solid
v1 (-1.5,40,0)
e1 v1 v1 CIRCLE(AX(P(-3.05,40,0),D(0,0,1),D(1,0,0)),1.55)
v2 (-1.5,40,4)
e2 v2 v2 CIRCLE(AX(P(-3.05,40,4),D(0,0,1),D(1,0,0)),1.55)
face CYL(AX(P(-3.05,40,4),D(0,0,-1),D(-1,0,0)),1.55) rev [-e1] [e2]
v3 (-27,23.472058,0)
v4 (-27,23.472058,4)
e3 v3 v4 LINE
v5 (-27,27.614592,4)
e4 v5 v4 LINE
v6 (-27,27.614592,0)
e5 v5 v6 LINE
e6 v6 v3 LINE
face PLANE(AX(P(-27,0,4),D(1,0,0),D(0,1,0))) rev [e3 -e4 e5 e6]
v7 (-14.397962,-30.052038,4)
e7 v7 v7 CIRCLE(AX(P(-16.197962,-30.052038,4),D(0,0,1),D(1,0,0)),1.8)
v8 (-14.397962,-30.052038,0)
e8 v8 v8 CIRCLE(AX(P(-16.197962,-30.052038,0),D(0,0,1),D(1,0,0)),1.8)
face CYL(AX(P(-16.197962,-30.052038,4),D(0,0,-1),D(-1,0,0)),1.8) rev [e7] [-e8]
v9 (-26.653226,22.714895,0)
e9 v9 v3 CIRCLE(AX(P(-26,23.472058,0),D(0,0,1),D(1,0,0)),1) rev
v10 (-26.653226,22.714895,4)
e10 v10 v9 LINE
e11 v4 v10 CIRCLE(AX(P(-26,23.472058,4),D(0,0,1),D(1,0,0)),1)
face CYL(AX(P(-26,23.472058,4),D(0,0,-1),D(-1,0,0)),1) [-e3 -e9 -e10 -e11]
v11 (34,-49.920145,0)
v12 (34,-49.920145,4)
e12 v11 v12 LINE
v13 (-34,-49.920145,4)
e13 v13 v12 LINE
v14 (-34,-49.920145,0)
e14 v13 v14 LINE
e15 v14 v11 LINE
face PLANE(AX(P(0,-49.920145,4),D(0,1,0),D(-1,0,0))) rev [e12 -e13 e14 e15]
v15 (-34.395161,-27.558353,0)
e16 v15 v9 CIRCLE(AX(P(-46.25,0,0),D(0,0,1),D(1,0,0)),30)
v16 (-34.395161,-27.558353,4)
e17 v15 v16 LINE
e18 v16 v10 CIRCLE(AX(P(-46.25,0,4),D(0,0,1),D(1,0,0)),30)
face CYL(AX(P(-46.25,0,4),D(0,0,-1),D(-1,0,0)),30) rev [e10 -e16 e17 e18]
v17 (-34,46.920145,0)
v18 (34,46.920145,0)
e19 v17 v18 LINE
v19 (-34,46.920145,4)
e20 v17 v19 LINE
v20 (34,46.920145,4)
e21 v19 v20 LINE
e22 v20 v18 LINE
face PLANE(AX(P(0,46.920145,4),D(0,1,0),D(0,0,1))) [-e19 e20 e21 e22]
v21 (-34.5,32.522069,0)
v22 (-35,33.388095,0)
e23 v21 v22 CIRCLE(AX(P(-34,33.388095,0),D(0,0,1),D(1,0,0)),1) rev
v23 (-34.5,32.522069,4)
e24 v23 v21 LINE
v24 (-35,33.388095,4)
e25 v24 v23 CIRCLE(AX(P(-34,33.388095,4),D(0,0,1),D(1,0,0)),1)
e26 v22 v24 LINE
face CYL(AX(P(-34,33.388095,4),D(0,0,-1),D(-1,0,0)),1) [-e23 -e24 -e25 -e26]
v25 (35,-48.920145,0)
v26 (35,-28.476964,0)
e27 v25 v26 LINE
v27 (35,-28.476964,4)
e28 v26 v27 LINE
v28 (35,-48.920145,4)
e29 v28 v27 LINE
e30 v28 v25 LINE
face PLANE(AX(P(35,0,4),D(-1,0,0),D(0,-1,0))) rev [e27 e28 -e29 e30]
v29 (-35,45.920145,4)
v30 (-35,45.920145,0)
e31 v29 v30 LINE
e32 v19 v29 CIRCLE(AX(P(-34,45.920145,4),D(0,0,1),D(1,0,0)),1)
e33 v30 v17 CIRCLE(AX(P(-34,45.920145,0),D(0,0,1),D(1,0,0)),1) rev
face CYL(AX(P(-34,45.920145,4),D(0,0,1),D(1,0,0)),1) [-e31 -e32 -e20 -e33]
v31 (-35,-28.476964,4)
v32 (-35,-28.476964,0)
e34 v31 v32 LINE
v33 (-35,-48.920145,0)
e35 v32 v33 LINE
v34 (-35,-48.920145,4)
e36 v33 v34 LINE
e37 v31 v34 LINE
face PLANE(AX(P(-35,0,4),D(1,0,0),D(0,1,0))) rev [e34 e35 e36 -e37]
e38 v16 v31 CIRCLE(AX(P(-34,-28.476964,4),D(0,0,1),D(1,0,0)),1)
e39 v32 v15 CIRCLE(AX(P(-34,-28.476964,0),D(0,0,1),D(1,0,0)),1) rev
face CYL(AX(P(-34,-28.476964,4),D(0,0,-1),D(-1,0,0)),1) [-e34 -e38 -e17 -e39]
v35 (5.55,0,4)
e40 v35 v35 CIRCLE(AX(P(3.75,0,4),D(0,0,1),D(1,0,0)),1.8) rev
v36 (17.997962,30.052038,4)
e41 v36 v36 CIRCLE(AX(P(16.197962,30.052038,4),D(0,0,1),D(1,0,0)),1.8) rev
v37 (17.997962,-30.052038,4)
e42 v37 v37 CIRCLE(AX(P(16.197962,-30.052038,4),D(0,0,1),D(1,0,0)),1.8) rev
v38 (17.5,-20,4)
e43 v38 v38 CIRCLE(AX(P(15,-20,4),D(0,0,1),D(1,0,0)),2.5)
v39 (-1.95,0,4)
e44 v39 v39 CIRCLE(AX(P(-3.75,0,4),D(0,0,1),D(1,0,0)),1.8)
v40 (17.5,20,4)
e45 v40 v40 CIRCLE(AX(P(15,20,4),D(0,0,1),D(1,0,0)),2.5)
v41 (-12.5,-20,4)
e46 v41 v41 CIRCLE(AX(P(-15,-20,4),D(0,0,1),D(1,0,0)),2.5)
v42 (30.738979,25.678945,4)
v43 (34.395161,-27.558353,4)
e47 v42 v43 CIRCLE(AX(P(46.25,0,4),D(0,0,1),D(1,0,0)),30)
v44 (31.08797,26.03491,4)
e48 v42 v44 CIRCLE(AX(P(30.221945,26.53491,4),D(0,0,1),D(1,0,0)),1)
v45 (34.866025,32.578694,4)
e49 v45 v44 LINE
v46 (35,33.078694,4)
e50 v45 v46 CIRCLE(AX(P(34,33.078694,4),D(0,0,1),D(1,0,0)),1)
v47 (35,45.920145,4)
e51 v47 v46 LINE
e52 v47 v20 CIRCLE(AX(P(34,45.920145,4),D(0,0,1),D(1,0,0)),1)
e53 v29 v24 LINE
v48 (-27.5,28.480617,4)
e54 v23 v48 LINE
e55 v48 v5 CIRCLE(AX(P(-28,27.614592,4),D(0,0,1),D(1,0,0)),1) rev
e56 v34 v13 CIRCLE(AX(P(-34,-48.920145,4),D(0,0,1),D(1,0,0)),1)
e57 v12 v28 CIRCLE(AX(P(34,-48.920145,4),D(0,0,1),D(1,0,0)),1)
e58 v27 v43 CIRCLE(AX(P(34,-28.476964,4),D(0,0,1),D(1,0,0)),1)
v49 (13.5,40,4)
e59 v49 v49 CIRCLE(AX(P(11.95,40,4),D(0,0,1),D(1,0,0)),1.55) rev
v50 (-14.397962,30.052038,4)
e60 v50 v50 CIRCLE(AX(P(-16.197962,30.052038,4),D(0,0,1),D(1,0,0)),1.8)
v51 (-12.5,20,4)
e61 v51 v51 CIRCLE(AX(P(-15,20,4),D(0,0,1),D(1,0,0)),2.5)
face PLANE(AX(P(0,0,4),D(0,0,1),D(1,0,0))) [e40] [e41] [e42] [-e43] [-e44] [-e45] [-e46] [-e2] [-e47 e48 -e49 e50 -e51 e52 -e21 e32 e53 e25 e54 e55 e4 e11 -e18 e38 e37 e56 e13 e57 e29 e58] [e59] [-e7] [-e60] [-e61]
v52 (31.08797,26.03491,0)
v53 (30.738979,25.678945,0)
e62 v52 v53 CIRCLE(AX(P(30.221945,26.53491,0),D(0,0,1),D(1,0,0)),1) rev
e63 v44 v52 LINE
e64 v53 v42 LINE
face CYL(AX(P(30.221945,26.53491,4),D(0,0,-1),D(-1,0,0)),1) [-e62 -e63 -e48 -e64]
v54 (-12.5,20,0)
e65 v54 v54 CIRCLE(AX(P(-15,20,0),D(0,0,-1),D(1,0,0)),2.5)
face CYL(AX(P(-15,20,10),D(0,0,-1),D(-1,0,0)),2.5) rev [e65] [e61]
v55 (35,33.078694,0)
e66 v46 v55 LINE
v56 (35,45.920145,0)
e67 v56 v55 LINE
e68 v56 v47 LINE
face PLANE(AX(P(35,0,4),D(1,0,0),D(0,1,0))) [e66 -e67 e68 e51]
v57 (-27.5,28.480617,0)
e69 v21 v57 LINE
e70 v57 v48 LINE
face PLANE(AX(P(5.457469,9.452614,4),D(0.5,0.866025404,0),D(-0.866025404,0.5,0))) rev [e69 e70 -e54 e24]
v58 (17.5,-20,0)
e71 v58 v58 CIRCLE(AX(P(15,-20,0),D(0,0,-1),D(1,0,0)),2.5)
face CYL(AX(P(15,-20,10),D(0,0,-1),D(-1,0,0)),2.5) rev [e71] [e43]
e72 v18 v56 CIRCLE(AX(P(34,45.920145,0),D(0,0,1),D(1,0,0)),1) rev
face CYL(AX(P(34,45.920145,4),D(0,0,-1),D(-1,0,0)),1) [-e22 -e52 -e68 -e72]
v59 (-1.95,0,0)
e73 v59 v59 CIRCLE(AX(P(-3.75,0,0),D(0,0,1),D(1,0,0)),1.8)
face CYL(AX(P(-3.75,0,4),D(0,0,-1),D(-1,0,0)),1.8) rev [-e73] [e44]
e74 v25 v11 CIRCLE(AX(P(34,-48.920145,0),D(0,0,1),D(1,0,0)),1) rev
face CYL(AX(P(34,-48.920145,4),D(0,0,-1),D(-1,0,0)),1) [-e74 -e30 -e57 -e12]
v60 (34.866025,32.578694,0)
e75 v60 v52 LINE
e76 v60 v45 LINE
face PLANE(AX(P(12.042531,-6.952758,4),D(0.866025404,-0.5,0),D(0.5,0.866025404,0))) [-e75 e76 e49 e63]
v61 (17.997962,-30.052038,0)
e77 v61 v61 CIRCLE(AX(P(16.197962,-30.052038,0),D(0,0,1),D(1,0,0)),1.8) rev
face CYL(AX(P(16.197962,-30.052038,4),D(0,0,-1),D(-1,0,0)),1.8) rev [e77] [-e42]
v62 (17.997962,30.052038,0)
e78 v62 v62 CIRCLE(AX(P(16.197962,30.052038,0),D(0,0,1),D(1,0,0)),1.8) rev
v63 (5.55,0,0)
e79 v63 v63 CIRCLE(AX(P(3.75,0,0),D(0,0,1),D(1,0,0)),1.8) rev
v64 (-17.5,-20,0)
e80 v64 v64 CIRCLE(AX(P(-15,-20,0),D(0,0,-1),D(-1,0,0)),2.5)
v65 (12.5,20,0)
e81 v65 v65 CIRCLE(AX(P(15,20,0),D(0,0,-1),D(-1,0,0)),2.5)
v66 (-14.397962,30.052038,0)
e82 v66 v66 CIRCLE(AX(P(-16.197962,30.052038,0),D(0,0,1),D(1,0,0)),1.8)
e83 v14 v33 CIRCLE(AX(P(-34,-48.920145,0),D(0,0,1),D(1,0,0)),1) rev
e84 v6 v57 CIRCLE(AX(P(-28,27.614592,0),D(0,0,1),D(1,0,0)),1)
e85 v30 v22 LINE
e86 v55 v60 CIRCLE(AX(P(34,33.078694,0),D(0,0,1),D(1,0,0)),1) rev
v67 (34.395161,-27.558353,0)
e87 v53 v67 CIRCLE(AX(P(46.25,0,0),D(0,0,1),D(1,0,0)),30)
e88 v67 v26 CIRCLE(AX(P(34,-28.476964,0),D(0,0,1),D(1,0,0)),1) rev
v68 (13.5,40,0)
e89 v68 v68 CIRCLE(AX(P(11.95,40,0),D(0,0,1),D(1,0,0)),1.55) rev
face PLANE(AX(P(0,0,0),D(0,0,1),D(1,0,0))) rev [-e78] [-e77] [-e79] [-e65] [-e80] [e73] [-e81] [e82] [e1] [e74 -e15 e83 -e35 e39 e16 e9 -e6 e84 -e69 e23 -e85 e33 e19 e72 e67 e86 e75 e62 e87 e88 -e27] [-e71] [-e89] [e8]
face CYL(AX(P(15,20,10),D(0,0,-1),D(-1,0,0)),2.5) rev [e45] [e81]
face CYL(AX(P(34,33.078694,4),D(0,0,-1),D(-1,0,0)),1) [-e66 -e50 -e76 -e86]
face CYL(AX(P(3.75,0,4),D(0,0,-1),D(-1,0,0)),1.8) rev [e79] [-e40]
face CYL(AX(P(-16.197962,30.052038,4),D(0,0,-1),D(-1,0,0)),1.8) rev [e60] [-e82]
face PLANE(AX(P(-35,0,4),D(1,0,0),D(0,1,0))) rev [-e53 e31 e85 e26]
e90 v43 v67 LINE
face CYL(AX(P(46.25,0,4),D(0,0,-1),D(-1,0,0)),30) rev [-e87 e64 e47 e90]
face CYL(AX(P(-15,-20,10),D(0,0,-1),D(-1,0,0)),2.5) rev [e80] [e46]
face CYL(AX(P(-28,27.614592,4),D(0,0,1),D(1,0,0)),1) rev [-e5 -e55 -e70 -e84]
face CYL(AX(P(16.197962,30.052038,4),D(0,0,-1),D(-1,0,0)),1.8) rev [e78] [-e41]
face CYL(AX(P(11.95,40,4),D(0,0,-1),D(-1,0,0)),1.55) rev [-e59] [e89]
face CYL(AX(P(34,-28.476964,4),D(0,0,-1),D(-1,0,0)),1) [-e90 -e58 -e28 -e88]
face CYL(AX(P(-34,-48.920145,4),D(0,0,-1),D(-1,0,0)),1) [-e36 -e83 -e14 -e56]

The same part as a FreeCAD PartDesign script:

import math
import FreeCAD as App
import Part
import Sketcher

V = App.Vector
Q = App.Units.Quantity


def edges_at(feature, points):
    """Names of the edges that pass closest to the given points."""
    edges = feature.Shape.Edges
    near = lambda p: min(range(len(edges)), key=lambda i: edges[i].distToShape(Part.Vertex(*p))[0])
    return sorted({f"Edge{near(p) + 1}" for p in points})

doc = App.newDocument("Part")
body = doc.addObject("PartDesign::Body", "Body")

sketch1 = body.newObject("Sketcher::SketchObject", "Sketch")
sketch1.AttachmentSupport = (doc.getObject("XY_Plane"), [""])
sketch1.MapMode = "FlatFace"
sketch1.addGeometry(Part.LineSegment(V(35, 46.920145, 0), V(-35, 46.920145, 0)), False)
sketch1.addGeometry(Part.LineSegment(V(-35, 46.920145, 0), V(-35, 32.810744, 0)), False)
sketch1.addGeometry(Part.LineSegment(V(-35, 32.810744, 0), V(-27, 28.191942, 0)), False)
sketch1.addGeometry(Part.LineSegment(V(-27, 28.191942, 0), V(-27, 23.009509, 0)), False)
sketch1.addGeometry(Part.ArcOfCircle(Part.Circle(V(-46.25, 0, 0), V(0, 0, 1), 30), math.radians(-67.975687), math.radians(50.083789)), False)
sketch1.addGeometry(Part.LineSegment(V(-35, -27.810744, 0), V(-35, -49.920145, 0)), False)
sketch1.addGeometry(Part.LineSegment(V(-35, -49.920145, 0), V(35, -49.920145, 0)), False)
sketch1.addGeometry(Part.LineSegment(V(35, -49.920145, 0), V(35, -27.810744, 0)), False)
sketch1.addGeometry(Part.ArcOfCircle(Part.Circle(V(46.25, 0, 0), V(0, 0, 1), 30), math.radians(120.645721), math.radians(247.975687)), False)
sketch1.addGeometry(Part.LineSegment(V(30.958157, 25.810066, 0), V(35, 32.810744, 0)), False)
sketch1.addGeometry(Part.LineSegment(V(35, 32.810744, 0), V(35, 46.920145, 0)), False)
sketch1.addGeometry(Part.Circle(V(-16.197962, -30.052038, 0), V(0, 0, 1), 1.8), False)
sketch1.addGeometry(Part.Circle(V(-3.75, 0, 0), V(0, 0, 1), 1.8), False)
sketch1.addGeometry(Part.Circle(V(16.197962, -30.052038, 0), V(0, 0, 1), 1.8), False)
sketch1.addGeometry(Part.Circle(V(3.75, 0, 0), V(0, 0, 1), 1.8), False)
sketch1.addGeometry(Part.Circle(V(-16.197962, 30.052038, 0), V(0, 0, 1), 1.8), False)
sketch1.addGeometry(Part.Circle(V(-3.05, 40, 0), V(0, 0, 1), 1.55), False)
sketch1.addGeometry(Part.Circle(V(16.197962, 30.052038, 0), V(0, 0, 1), 1.8), False)
sketch1.addGeometry(Part.Circle(V(11.95, 40, 0), V(0, 0, 1), 1.55), False)
sketch1.addConstraint(Sketcher.Constraint("Coincident", 0, 2, 1, 1))
sketch1.addConstraint(Sketcher.Constraint("Coincident", 1, 2, 2, 1))
sketch1.addConstraint(Sketcher.Constraint("Coincident", 2, 2, 3, 1))
sketch1.addConstraint(Sketcher.Constraint("Coincident", 3, 2, 4, 2))
sketch1.addConstraint(Sketcher.Constraint("Coincident", 4, 1, 5, 1))
sketch1.addConstraint(Sketcher.Constraint("Coincident", 5, 2, 6, 1))
sketch1.addConstraint(Sketcher.Constraint("Coincident", 6, 2, 7, 1))
sketch1.addConstraint(Sketcher.Constraint("Coincident", 7, 2, 8, 2))
sketch1.addConstraint(Sketcher.Constraint("Coincident", 8, 1, 9, 1))
sketch1.addConstraint(Sketcher.Constraint("Coincident", 9, 2, 10, 1))
sketch1.addConstraint(Sketcher.Constraint("Coincident", 10, 2, 0, 1))
sketch1.addConstraint(Sketcher.Constraint("Horizontal", 0))
sketch1.addConstraint(Sketcher.Constraint("Vertical", 1))
sketch1.addConstraint(Sketcher.Constraint("Vertical", 3))
sketch1.addConstraint(Sketcher.Constraint("Vertical", 5))
sketch1.addConstraint(Sketcher.Constraint("Horizontal", 6))
sketch1.addConstraint(Sketcher.Constraint("Vertical", 7))
sketch1.addConstraint(Sketcher.Constraint("Vertical", 10))
sketch1.addConstraint(Sketcher.Constraint("Equal", 4, 8))
sketch1.addConstraint(Sketcher.Constraint("Equal", 11, 12))
sketch1.addConstraint(Sketcher.Constraint("Equal", 12, 13))
sketch1.addConstraint(Sketcher.Constraint("Equal", 13, 14))
sketch1.addConstraint(Sketcher.Constraint("Equal", 14, 15))
sketch1.addConstraint(Sketcher.Constraint("Equal", 15, 17))
sketch1.addConstraint(Sketcher.Constraint("Equal", 16, 18))
sketch1.addConstraint(Sketcher.Constraint("Symmetric", 4, 3, 8, 3, -1, 1))
sketch1.addConstraint(Sketcher.Constraint("Symmetric", 12, 3, 14, 3, -1, 1))
sketch1.addConstraint(Sketcher.Constraint("Symmetric", 13, 3, 15, 3, -1, 1))
sketch1.addConstraint(Sketcher.Constraint("Symmetric", 11, 3, 17, 3, -1, 1))
sketch1.addConstraint(Sketcher.Constraint("Symmetric", 11, 3, 13, 3, -2))
sketch1.addConstraint(Sketcher.Constraint("Symmetric", 4, 1, 7, 2, -2))
sketch1.addConstraint(Sketcher.Constraint("Symmetric", 1, 2, 9, 2, -2))
sketch1.addConstraint(Sketcher.Constraint("PointOnObject", 12, 3, -1))
sketch1.addConstraint(Sketcher.Constraint("Perpendicular", 2, 9))
sketch1.addConstraint(Sketcher.Constraint("Horizontal", 16, 3, 18, 3))
sketch1.addConstraint(Sketcher.Constraint("Vertical", 1, 2, 4, 1))
sketch1.addConstraint(Sketcher.Constraint("Radius", 4, Q("30 mm")))
sketch1.addConstraint(Sketcher.Constraint("Diameter", 11, Q("3.6 mm")))
sketch1.addConstraint(Sketcher.Constraint("Diameter", 16, Q("3.1 mm")))
sketch1.addConstraint(Sketcher.Constraint("DistanceX", 0, 2, 0, 1, Q("70 mm")))
sketch1.addConstraint(Sketcher.Constraint("Angle", 2, Q("-30 deg")))
sketch1.addConstraint(Sketcher.Constraint("DistanceY", -1, 1, 16, 3, Q("40 mm")))
sketch1.addConstraint(Sketcher.Constraint("DistanceX", 2, 2, -1, 1, Q("27 mm")))
sketch1.addConstraint(Sketcher.Constraint("DistanceX", 12, 3, 8, 3, Q("50 mm")))
sketch1.addConstraint(Sketcher.Constraint("DistanceX", 16, 3, 18, 3, Q("15 mm")))
sketch1.addConstraint(Sketcher.Constraint("DistanceX", 4, 3, 8, 3, Q("92.5 mm")))
sketch1.addConstraint(Sketcher.Constraint("DistanceX", 12, 3, 16, 3, Q("0.7 mm")))
sketch1.addConstraint(Sketcher.Constraint("DistanceY", 1, 2, 1, 1, Q("14.109401 mm")))
sketch1.addConstraint(Sketcher.Constraint("DistanceY", 5, 2, 5, 1, Q("22.109401 mm")))
sketch1.addConstraint(Sketcher.Constraint("DistanceY", 3, 2, 3, 1, Q("5.182433 mm")))
sketch1.addConstraint(Sketcher.Constraint("DistanceX", 11, 3, -1, 1, Q("16.197962 mm")))
sketch1.addConstraint(Sketcher.Constraint("DistanceY", 11, 3, -1, 1, Q("30.052038 mm")))
pad1 = body.newObject("PartDesign::Pad", "Pad")
pad1.Profile = sketch1
pad1.Length = 4

sketch2 = body.newObject("Sketcher::SketchObject", "Sketch001")
sketch2.AttachmentSupport = (doc.getObject("XY_Plane"), [""])
sketch2.MapMode = "FlatFace"
sketch2.addGeometry(Part.Circle(V(15, 20, 0), V(0, 0, 1), 2.5), False)
sketch2.addGeometry(Part.Circle(V(-15, 20, 0), V(0, 0, 1), 2.5), False)
sketch2.addGeometry(Part.Circle(V(-15, -20, 0), V(0, 0, 1), 2.5), False)
sketch2.addGeometry(Part.Circle(V(15, -20, 0), V(0, 0, 1), 2.5), False)
sketch2.addConstraint(Sketcher.Constraint("Equal", 0, 1))
sketch2.addConstraint(Sketcher.Constraint("Equal", 1, 2))
sketch2.addConstraint(Sketcher.Constraint("Equal", 2, 3))
sketch2.addConstraint(Sketcher.Constraint("Symmetric", 0, 3, 2, 3, -1, 1))
sketch2.addConstraint(Sketcher.Constraint("Symmetric", 1, 3, 3, 3, -1, 1))
sketch2.addConstraint(Sketcher.Constraint("Symmetric", 0, 3, 1, 3, -2))
sketch2.addConstraint(Sketcher.Constraint("Diameter", 0, Q("5 mm")))
sketch2.addConstraint(Sketcher.Constraint("DistanceX", -1, 1, 0, 3, Q("15 mm")))
sketch2.addConstraint(Sketcher.Constraint("DistanceY", -1, 1, 0, 3, Q("20 mm")))
pocket1 = body.newObject("PartDesign::Pocket", "Pocket")
pocket1.Profile = sketch2
pocket1.Length = 10
pocket1.Reversed = True
doc.recompute()

fillet = body.newObject("PartDesign::Fillet", "Fillet")
fillet.Base = (pocket1, edges_at(pocket1, [
    (35, -27.811, 2),
    (35, -49.92, 2),
    (-35, -49.92, 2),
    (-35, -27.811, 2),
    (-27, 23.01, 2),
    (-27, 28.192, 2),
    (-35, 32.811, 2),
    (-35, 46.92, 2),
    (35, 46.92, 2),
    (35, 32.811, 2),
    (30.958, 25.81, 2),
]))
fillet.Radius = 1

doc.recompute()
